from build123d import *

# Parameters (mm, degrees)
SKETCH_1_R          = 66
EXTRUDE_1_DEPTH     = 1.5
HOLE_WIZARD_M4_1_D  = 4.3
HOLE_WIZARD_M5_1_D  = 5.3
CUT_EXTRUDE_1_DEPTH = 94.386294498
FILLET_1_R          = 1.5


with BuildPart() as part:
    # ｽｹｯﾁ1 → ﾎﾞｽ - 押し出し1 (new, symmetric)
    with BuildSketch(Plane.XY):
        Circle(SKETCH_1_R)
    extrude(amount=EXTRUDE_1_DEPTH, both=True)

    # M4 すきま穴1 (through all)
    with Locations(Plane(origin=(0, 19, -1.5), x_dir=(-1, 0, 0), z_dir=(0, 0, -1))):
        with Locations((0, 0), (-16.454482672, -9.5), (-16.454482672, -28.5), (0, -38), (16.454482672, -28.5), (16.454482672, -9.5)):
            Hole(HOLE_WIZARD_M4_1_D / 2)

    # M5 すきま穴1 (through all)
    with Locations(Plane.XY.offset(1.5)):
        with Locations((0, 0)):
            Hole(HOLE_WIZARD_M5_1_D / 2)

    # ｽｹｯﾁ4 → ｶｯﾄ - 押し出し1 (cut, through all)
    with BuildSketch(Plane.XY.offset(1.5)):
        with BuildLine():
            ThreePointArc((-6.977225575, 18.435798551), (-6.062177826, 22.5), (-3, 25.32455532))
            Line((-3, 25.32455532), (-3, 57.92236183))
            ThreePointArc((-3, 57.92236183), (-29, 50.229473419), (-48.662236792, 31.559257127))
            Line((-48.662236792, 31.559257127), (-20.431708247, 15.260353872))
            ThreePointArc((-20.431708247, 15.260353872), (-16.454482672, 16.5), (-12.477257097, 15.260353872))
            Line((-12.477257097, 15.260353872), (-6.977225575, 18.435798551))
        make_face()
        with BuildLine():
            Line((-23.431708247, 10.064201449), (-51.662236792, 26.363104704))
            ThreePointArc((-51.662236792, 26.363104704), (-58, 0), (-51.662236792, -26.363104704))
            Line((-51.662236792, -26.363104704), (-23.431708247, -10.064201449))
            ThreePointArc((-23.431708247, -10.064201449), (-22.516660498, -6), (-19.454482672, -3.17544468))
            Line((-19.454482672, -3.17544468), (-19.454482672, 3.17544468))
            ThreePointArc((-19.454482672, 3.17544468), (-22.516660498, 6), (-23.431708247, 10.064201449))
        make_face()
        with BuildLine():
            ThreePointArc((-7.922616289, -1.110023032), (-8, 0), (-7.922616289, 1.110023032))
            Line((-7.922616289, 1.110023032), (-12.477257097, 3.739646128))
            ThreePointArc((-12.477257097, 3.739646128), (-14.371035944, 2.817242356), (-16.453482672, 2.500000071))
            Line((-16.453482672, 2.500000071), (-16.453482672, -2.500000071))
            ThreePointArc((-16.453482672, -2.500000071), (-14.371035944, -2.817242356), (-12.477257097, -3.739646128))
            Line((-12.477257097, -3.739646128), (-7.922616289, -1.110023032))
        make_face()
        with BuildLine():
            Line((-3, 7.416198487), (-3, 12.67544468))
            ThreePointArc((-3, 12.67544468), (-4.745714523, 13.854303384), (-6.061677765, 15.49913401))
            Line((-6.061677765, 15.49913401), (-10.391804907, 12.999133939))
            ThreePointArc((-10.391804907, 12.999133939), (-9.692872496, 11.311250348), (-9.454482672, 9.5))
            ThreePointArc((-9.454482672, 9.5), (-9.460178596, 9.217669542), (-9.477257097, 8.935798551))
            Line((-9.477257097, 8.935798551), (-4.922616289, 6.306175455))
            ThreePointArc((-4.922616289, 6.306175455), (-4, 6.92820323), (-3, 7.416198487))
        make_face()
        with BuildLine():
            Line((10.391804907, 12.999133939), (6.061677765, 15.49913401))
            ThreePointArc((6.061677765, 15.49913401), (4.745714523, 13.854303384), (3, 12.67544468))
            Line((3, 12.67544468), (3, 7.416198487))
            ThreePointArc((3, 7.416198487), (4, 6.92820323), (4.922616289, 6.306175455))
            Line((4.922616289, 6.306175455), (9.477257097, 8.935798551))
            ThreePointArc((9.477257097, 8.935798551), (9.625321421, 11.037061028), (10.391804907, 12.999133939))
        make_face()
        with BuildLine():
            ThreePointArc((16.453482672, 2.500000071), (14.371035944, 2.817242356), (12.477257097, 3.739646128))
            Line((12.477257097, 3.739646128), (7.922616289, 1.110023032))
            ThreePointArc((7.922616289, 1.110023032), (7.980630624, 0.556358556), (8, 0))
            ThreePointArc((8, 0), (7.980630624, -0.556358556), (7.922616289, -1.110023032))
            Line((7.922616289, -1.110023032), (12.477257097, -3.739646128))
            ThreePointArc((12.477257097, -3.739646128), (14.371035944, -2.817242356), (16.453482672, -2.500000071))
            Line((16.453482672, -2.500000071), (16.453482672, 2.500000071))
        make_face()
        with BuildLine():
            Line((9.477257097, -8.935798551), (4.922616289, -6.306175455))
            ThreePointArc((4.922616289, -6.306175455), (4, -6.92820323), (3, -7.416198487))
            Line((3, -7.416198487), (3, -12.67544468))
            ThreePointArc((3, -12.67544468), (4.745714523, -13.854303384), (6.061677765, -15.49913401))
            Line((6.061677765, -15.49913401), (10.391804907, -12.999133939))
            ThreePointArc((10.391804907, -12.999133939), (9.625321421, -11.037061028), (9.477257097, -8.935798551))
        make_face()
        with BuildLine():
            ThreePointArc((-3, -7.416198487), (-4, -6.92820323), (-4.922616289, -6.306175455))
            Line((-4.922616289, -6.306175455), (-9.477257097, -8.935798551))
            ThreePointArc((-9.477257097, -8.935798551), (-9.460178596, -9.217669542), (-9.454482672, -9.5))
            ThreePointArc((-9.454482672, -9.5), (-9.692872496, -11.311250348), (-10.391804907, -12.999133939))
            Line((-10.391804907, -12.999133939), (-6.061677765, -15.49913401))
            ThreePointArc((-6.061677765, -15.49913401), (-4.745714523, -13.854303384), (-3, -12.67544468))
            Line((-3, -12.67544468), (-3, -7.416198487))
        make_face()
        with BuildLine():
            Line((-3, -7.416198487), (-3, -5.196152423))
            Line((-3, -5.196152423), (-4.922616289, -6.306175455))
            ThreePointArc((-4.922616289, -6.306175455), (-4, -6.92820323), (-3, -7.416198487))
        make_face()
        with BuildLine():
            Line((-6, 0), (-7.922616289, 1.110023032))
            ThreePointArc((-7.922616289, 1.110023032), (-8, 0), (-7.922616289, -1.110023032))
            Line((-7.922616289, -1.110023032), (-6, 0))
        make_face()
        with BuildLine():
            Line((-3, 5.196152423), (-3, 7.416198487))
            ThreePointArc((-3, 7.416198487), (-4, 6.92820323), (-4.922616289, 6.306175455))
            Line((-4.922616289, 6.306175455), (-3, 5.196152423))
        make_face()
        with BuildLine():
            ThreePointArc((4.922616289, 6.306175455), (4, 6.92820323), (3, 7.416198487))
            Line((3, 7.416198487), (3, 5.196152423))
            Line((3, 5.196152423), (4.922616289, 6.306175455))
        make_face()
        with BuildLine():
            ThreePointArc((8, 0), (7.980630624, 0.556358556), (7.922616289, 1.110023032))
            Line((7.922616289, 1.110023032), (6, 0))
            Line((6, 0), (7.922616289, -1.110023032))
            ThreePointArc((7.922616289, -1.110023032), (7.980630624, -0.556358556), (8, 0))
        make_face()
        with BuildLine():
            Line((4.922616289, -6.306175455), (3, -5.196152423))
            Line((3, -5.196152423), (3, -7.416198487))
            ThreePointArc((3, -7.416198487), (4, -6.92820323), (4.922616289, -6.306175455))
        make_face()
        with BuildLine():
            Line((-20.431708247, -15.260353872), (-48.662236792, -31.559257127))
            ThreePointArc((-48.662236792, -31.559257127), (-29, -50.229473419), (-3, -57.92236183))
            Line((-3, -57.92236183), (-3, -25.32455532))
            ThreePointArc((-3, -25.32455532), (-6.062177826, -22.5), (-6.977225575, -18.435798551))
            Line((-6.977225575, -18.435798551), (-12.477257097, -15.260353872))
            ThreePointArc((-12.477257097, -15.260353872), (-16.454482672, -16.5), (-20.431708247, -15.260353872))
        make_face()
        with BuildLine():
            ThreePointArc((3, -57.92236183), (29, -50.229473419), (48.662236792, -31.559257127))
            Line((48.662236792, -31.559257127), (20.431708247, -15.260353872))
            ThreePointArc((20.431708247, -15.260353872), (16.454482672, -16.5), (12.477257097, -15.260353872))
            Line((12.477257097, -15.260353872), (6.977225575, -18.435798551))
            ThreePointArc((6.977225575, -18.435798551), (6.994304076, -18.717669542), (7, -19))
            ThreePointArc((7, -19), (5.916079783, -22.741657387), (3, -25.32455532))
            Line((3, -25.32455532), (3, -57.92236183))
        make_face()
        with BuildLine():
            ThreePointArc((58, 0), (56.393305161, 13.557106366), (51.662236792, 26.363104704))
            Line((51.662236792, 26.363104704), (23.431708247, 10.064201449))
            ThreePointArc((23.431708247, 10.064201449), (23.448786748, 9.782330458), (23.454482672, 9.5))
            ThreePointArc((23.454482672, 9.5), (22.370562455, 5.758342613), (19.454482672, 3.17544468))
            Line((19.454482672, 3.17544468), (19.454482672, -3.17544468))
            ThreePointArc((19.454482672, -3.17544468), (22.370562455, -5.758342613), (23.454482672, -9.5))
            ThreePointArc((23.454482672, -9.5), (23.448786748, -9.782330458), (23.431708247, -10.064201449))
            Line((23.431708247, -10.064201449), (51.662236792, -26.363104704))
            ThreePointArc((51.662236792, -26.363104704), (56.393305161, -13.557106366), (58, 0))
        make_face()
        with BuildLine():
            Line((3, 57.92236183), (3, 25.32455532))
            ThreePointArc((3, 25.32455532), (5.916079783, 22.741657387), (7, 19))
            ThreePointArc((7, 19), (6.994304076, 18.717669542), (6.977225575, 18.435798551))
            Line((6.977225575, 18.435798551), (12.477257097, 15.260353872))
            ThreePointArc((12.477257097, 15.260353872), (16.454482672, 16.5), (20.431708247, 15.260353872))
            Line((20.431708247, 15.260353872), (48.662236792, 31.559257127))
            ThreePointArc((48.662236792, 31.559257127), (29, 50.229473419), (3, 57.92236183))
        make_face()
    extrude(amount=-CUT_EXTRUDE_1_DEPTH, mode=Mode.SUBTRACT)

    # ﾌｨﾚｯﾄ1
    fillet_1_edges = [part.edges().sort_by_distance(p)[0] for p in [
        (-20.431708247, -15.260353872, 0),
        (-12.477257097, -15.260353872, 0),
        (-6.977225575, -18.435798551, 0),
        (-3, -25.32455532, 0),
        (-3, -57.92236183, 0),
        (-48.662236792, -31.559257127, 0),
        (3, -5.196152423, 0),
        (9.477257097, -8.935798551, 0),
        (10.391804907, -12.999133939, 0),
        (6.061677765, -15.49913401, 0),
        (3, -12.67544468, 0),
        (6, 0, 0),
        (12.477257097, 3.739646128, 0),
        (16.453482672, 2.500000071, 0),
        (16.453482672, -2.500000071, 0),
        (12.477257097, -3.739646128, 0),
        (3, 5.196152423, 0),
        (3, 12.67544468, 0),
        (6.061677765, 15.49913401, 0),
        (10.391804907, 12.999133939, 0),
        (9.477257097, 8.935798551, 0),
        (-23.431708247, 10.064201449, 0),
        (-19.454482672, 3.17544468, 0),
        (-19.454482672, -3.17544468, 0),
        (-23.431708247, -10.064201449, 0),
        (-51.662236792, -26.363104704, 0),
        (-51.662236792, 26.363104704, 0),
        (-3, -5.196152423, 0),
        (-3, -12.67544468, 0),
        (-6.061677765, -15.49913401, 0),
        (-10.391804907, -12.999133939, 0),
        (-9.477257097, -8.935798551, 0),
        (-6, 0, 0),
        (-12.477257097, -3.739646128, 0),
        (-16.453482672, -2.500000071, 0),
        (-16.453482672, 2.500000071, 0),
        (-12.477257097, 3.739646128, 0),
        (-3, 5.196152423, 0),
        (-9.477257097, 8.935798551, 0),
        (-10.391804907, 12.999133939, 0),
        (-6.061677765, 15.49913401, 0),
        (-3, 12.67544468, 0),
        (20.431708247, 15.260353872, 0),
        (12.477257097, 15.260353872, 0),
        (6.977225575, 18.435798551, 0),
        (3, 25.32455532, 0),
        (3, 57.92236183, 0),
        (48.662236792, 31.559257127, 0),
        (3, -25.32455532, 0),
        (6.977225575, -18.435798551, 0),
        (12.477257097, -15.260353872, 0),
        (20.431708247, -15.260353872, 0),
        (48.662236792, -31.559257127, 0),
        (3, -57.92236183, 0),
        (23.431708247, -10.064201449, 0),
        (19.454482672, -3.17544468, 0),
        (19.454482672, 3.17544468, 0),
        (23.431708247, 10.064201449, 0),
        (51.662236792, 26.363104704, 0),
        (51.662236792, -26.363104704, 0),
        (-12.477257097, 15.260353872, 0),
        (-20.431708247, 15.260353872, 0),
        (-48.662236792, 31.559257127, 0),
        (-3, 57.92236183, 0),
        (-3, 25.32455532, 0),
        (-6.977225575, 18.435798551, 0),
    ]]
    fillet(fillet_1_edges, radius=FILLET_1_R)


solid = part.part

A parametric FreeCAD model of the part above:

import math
import FreeCAD as App
import Part
import Sketcher

V = App.Vector
Q = App.Units.Quantity


def edges_at(feature, points):
    """Names of the edges that pass closest to the given points."""
    edges = feature.Shape.Edges
    near = lambda p: min(range(len(edges)), key=lambda i: edges[i].distToShape(Part.Vertex(*p))[0])
    return sorted({f"Edge{near(p) + 1}" for p in points})

doc = App.newDocument("Part")
params = doc.addObject("Spreadsheet::Sheet", "Params")
for row, (alias, value) in enumerate([
    ("sketch1_diameter", "132 mm"),
    ("pad1_length", "3 mm"),
    ("sketch2_diameter", "4.3 mm"),
    ("hole_diameter", "4.3 mm"),
    ("sketch3_diameter", "5.3 mm"),
    ("hole2_diameter", "5.3 mm"),
    ("sketch4_radius", "7 mm"),
    ("sketch4_radius2", "58 mm"),
    ("sketch4_height", "5 mm"),
    ("sketch4_length", "5 mm"),
    ("fillet_radius", "1.5 mm"),
], start=1):
    params.set(f"A{row}", alias)
    params.set(f"B{row}", "=" + value)
    params.setAlias(f"B{row}", alias)

body = doc.addObject("PartDesign::Body", "Body")

# Sketch on XY plane
sketch1 = body.newObject("Sketcher::SketchObject", "Sketch")
sketch1.AttachmentSupport = (doc.getObject("XY_Plane"), [""])
sketch1.MapMode = "FlatFace"
sketch1.addGeometry(Part.Circle(V(0, 0, 0), V(0, 0, 1), 66), False)
sketch1.addConstraint(Sketcher.Constraint("Coincident", 0, 3, -1, 1))
sketch1.addConstraint(Sketcher.Constraint("Diameter", 0, 132.0))
sketch1.setExpression("Constraints[1]", "Params.sketch1_diameter")
pad1 = body.newObject("PartDesign::Pad", "Pad")
pad1.Profile = sketch1
pad1.setExpression("Length", "Params.pad1_length")
pad1.Midplane = True

# Sketch on XY plane
sketch2 = body.newObject("Sketcher::SketchObject", "Sketch001")
sketch2.AttachmentSupport = (doc.getObject("XY_Plane"), [""])
sketch2.MapMode = "FlatFace"
sketch2.AttachmentOffset = App.Placement(V(0, 0, -1.5), App.Rotation())
sketch2.addGeometry(Part.Circle(V(0, 19, 0), V(0, 0, 1), 2.1), False)
sketch2.addGeometry(Part.Circle(V(16.5, 9.5, 0), V(0, 0, 1), 2.1), False)
sketch2.addGeometry(Part.Circle(V(16.5, -9.5, 0), V(0, 0, 1), 2.1), False)
sketch2.addGeometry(Part.Circle(V(0, -19, 0), V(0, 0, 1), 2.1), False)
sketch2.addGeometry(Part.Circle(V(-16.5, -9.5, 0), V(0, 0, 1), 2.1), False)
sketch2.addGeometry(Part.Circle(V(-16.5, 9.5, 0), V(0, 0, 1), 2.1), False)
sketch2.addConstraint(Sketcher.Constraint("Equal", 0, 1))
sketch2.addConstraint(Sketcher.Constraint("Equal", 1, 2))
sketch2.addConstraint(Sketcher.Constraint("Equal", 2, 3))
sketch2.addConstraint(Sketcher.Constraint("Equal", 3, 4))
sketch2.addConstraint(Sketcher.Constraint("Equal", 4, 5))
sketch2.addConstraint(Sketcher.Constraint("Symmetric", 0, 3, 3, 3, -1, 1))
sketch2.addConstraint(Sketcher.Constraint("Symmetric", 1, 3, 4, 3, -1, 1))
sketch2.addConstraint(Sketcher.Constraint("Symmetric", 2, 3, 5, 3, -1, 1))
sketch2.addConstraint(Sketcher.Constraint("Symmetric", 2, 3, 4, 3, -2))
sketch2.addConstraint(Sketcher.Constraint("PointOnObject", 0, 3, -2))
sketch2.addConstraint(Sketcher.Constraint("Diameter", 0, 4.3))
sketch2.addConstraint(Sketcher.Constraint("DistanceY", -1, 1, 0, 3, 19.0))
sketch2.addConstraint(Sketcher.Constraint("DistanceY", 2, 3, 1, 3, 19.0))
sketch2.addConstraint(Sketcher.Constraint("DistanceX", -1, 1, 1, 3, 16.454483))
sketch2.setExpression("Constraints[10]", "Params.sketch2_diameter")
doc.recompute()
hole = body.newObject("PartDesign::Hole", "Hole")
hole.Profile = sketch2
hole.ThreadType = "None"
hole.setExpression("Diameter", "Params.hole_diameter")
hole.DepthType = "ThroughAll"
hole.Reversed = True

# Sketch on XY plane
sketch3 = body.newObject("Sketcher::SketchObject", "Sketch002")
sketch3.AttachmentSupport = (doc.getObject("XY_Plane"), [""])
sketch3.MapMode = "FlatFace"
sketch3.AttachmentOffset = App.Placement(V(0, 0, 1.5), App.Rotation())
sketch3.addGeometry(Part.Circle(V(0, 0, 0), V(0, 0, 1), 2.6), False)
sketch3.addConstraint(Sketcher.Constraint("Coincident", 0, 3, -1, 1))
sketch3.addConstraint(Sketcher.Constraint("Diameter", 0, 5.3))
sketch3.setExpression("Constraints[1]", "Params.sketch3_diameter")
doc.recompute()
hole2 = body.newObject("PartDesign::Hole", "Hole001")
hole2.Profile = sketch3
hole2.ThreadType = "None"
hole2.setExpression("Diameter", "Params.hole2_diameter")
hole2.DepthType = "ThroughAll"

# Sketch on XY plane
sketch4 = body.newObject("Sketcher::SketchObject", "Sketch003")
sketch4.AttachmentSupport = (doc.getObject("XY_Plane"), [""])
sketch4.MapMode = "FlatFace"
sketch4.AttachmentOffset = App.Placement(V(0, 0, 1.5), App.Rotation())
sketch4.addGeometry(Part.ArcOfCircle(Part.Circle(V(0, 19, 0), V(0, 0, 1), 7), math.radians(115), math.radians(185)), False)
sketch4.addGeometry(Part.LineSegment(V(-3, 25.3, 0), V(-3, 57.9, 0)), False)
sketch4.addGeometry(Part.ArcOfCircle(Part.Circle(V(0, 0, 0), V(0, 0, 1), 58), math.radians(93), math.radians(147)), False)
sketch4.addGeometry(Part.LineSegment(V(-48.7, 31.6, 0), V(-20.4, 15.3, 0)), False)
sketch4.addGeometry(Part.ArcOfCircle(Part.Circle(V(-16.5, 9.5, 0), V(0, 0, 1), 7), math.radians(55), math.radians(125)), False)
sketch4.addGeometry(Part.LineSegment(V(-12.5, 15.3, 0), V(-7, 18.4, 0)), False)
sketch4.addGeometry(Part.LineSegment(V(-23.4, 10.1, 0), V(-51.7, 26.4, 0)), False)
sketch4.addGeometry(Part.ArcOfCircle(Part.Circle(V(0, 0, 0), V(0, 0, 1), 58), math.radians(153), math.radians(207)), False)
sketch4.addGeometry(Part.LineSegment(V(-51.7, -26.4, 0), V(-23.4, -10.1, 0)), False)
sketch4.addGeometry(Part.ArcOfCircle(Part.Circle(V(-16.5, -9.5, 0), V(0, 0, 1), 7), math.radians(115), math.radians(185)), False)
sketch4.addGeometry(Part.LineSegment(V(-19.5, -3.2, 0), V(-19.5, 3.2, 0)), False)
sketch4.addGeometry(Part.ArcOfCircle(Part.Circle(V(-16.5, 9.5, 0), V(0, 0, 1), 7), math.radians(175), math.radians(245)), False)
sketch4.addGeometry(Part.LineSegment(V(-7.9, 1.1, 0), V(-12.5, 3.7, 0)), False)
sketch4.addGeometry(Part.ArcOfCircle(Part.Circle(V(-16.5, 9.5, 0), V(0, 0, 1), 7), math.radians(-90), math.radians(-55)), False)
sketch4.addGeometry(Part.LineSegment(V(-16.5, 2.5, 0), V(-16.5, -2.5, 0)), False)
sketch4.addGeometry(Part.ArcOfCircle(Part.Circle(V(-16.5, -9.5, 0), V(0, 0, 1), 7), math.radians(55), math.radians(90)), False)
sketch4.addGeometry(Part.LineSegment(V(-12.5, -3.7, 0), V(-7.9, -1.1, 0)), False)
sketch4.addGeometry(Part.LineSegment(V(-7.9, -1.1, 0), V(-6, 0, 0)), False)
sketch4.addGeometry(Part.LineSegment(V(-6, 0, 0), V(-7.9, 1.1, 0)), False)
sketch4.addGeometry(Part.ArcOfCircle(Part.Circle(V(0, 19, 0), V(0, 0, 1), 7), math.radians(-150), math.radians(-115)), False)
sketch4.addGeometry(Part.LineSegment(V(-6.1, 15.5, 0), V(-10.4, 13, 0)), False)
sketch4.addGeometry(Part.ArcOfCircle(Part.Circle(V(-16.5, 9.5, 0), V(0, 0, 1), 7), math.radians(0), math.radians(30)), False)
sketch4.addGeometry(Part.ArcOfCircle(Part.Circle(V(-16.5, 9.5, 0), V(0, 0, 1), 7), math.radians(-4.62), math.radians(0)), False)
sketch4.addGeometry(Part.LineSegment(V(-9.5, 8.9, 0), V(-4.9, 6.3, 0)), False)
sketch4.addGeometry(Part.LineSegment(V(-4.9, 6.3, 0), V(-3, 5.2, 0)), False)
sketch4.addGeometry(Part.LineSegment(V(-3, 5.2, 0), V(-3, 12.7, 0)), False)
sketch4.addGeometry(Part.LineSegment(V(10.4, 13, 0), V(6.1, 15.5, 0)), False)
sketch4.addGeometry(Part.ArcOfCircle(Part.Circle(V(0, 19, 0), V(0, 0, 1), 7), math.radians(-65), math.radians(-30)), False)
sketch4.addGeometry(Part.LineSegment(V(3, 12.7, 0), V(3, 5.2, 0)), False)
sketch4.addGeometry(Part.LineSegment(V(3, 5.2, 0), V(4.9, 6.3, 0)), False)
sketch4.addGeometry(Part.LineSegment(V(4.9, 6.3, 0), V(9.5, 8.9, 0)), False)
sketch4.addGeometry(Part.ArcOfCircle(Part.Circle(V(16.5, 9.5, 0), V(0, 0, 1), 7), math.radians(150), math.radians(185)), False)
sketch4.addGeometry(Part.ArcOfCircle(Part.Circle(V(16.5, 9.5, 0), V(0, 0, 1), 7), math.radians(-125), math.radians(-90)), False)
sketch4.addGeometry(Part.LineSegment(V(12.5, 3.7, 0), V(7.9, 1.1, 0)), False)
sketch4.addGeometry(Part.LineSegment(V(7.9, 1.1, 0), V(6, 0, 0)), False)
sketch4.addGeometry(Part.LineSegment(V(6, 0, 0), V(7.9, -1.1, 0)), False)
sketch4.addGeometry(Part.LineSegment(V(7.9, -1.1, 0), V(12.5, -3.7, 0)), False)
sketch4.addGeometry(Part.ArcOfCircle(Part.Circle(V(16.5, -9.5, 0), V(0, 0, 1), 7), math.radians(90), math.radians(125)), False)
sketch4.addGeometry(Part.LineSegment(V(16.5, -2.5, 0), V(16.5, 2.5, 0)), False)
sketch4.addGeometry(Part.LineSegment(V(9.5, -8.9, 0), V(4.9, -6.3, 0)), False)
sketch4.addGeometry(Part.LineSegment(V(4.9, -6.3, 0), V(3, -5.2, 0)), False)
sketch4.addGeometry(Part.LineSegment(V(3, -5.2, 0), V(3, -12.7, 0)), False)
sketch4.addGeometry(Part.ArcOfCircle(Part.Circle(V(0, -19, 0), V(0, 0, 1), 7), math.radians(30), math.radians(65)), False)
sketch4.addGeometry(Part.LineSegment(V(6.1, -15.5, 0), V(10.4, -13, 0)), False)
sketch4.addGeometry(Part.ArcOfCircle(Part.Circle(V(16.5, -9.5, 0), V(0, 0, 1), 7), math.radians(175), math.radians(210)), False)
sketch4.addGeometry(Part.LineSegment(V(-4.9, -6.3, 0), V(-9.5, -8.9, 0)), False)
sketch4.addGeometry(Part.ArcOfCircle(Part.Circle(V(-16.5, -9.5, 0), V(0, 0, 1), 7), math.radians(0), math.radians(4.62)), False)
sketch4.addGeometry(Part.ArcOfCircle(Part.Circle(V(-16.5, -9.5, 0), V(0, 0, 1), 7), math.radians(-30), math.radians(0)), False)
sketch4.addGeometry(Part.LineSegment(V(-10.4, -13, 0), V(-6.1, -15.5, 0)), False)
sketch4.addGeometry(Part.ArcOfCircle(Part.Circle(V(0, -19, 0), V(0, 0, 1), 7), math.radians(115), math.radians(150)), False)
sketch4.addGeometry(Part.LineSegment(V(-3, -12.7, 0), V(-3, -5.2, 0)), False)
sketch4.addGeometry(Part.LineSegment(V(-3, -5.2, 0), V(-4.9, -6.3, 0)), False)
sketch4.addGeometry(Part.LineSegment(V(-20.4, -15.3, 0), V(-48.7, -31.6, 0)), False)
sketch4.addGeometry(Part.ArcOfCircle(Part.Circle(V(0, 0, 0), V(0, 0, 1), 58), math.radians(-147), math.radians(-93)), False)
sketch4.addGeometry(Part.LineSegment(V(-3, -57.9, 0), V(-3, -25.3, 0)), False)
sketch4.addGeometry(Part.ArcOfCircle(Part.Circle(V(0, -19, 0), V(0, 0, 1), 7), math.radians(175), math.radians(245)), False)
sketch4.addGeometry(Part.LineSegment(V(-7, -18.4, 0), V(-12.5, -15.3, 0)), False)
sketch4.addGeometry(Part.ArcOfCircle(Part.Circle(V(-16.5, -9.5, 0), V(0, 0, 1), 7), math.radians(-125), math.radians(-55)), False)
sketch4.addGeometry(Part.ArcOfCircle(Part.Circle(V(0, 0, 0), V(0, 0, 1), 58), math.radians(-87), math.radians(-33)), False)
sketch4.addGeometry(Part.LineSegment(V(48.7, -31.6, 0), V(20.4, -15.3, 0)), False)
sketch4.addGeometry(Part.ArcOfCircle(Part.Circle(V(16.5, -9.5, 0), V(0, 0, 1), 7), math.radians(-125), math.radians(-55)), False)
sketch4.addGeometry(Part.LineSegment(V(12.5, -15.3, 0), V(7, -18.4, 0)), False)
sketch4.addGeometry(Part.ArcOfCircle(Part.Circle(V(0, -19, 0), V(0, 0, 1), 7), math.radians(0), math.radians(4.62)), False)
sketch4.addGeometry(Part.ArcOfCircle(Part.Circle(V(0, -19, 0), V(0, 0, 1), 7), math.radians(-65), math.radians(0)), False)
sketch4.addGeometry(Part.LineSegment(V(3, -25.3, 0), V(3, -57.9, 0)), False)
sketch4.addGeometry(Part.ArcOfCircle(Part.Circle(V(0, 0, 0), V(0, 0, 1), 58), math.radians(0), math.radians(27)), False)
sketch4.addGeometry(Part.LineSegment(V(51.7, 26.4, 0), V(23.4, 10.1, 0)), False)
sketch4.addGeometry(Part.ArcOfCircle(Part.Circle(V(16.5, 9.5, 0), V(0, 0, 1), 7), math.radians(0), math.radians(4.62)), False)
sketch4.addGeometry(Part.ArcOfCircle(Part.Circle(V(16.5, 9.5, 0), V(0, 0, 1), 7), math.radians(-65), math.radians(0)), False)
sketch4.addGeometry(Part.LineSegment(V(19.5, 3.2, 0), V(19.5, -3.2, 0)), False)
sketch4.addGeometry(Part.ArcOfCircle(Part.Circle(V(16.5, -9.5, 0), V(0, 0, 1), 7), math.radians(0), math.radians(65)), False)
sketch4.addGeometry(Part.ArcOfCircle(Part.Circle(V(16.5, -9.5, 0), V(0, 0, 1), 7), math.radians(-4.62), math.radians(0)), False)
sketch4.addGeometry(Part.LineSegment(V(23.4, -10.1, 0), V(51.7, -26.4, 0)), False)
sketch4.addGeometry(Part.ArcOfCircle(Part.Circle(V(0, 0, 0), V(0, 0, 1), 58), math.radians(-27), math.radians(0)), False)
sketch4.addGeometry(Part.LineSegment(V(3, 57.9, 0), V(3, 25.3, 0)), False)
sketch4.addGeometry(Part.ArcOfCircle(Part.Circle(V(0, 19, 0), V(0, 0, 1), 7), math.radians(0), math.radians(65)), False)
sketch4.addGeometry(Part.ArcOfCircle(Part.Circle(V(0, 19, 0), V(0, 0, 1), 7), math.radians(-4.62), math.radians(0)), False)
sketch4.addGeometry(Part.LineSegment(V(7, 18.4, 0), V(12.5, 15.3, 0)), False)
sketch4.addGeometry(Part.ArcOfCircle(Part.Circle(V(16.5, 9.5, 0), V(0, 0, 1), 7), math.radians(55), math.radians(125)), False)
sketch4.addGeometry(Part.LineSegment(V(20.4, 15.3, 0), V(48.7, 31.6, 0)), False)
sketch4.addGeometry(Part.ArcOfCircle(Part.Circle(V(0, 0, 0), V(0, 0, 1), 58), math.radians(33), math.radians(87)), False)
sketch4.addConstraint(Sketcher.Constraint("Coincident", 0, 1, 1, 1))
sketch4.addConstraint(Sketcher.Constraint("Coincident", 1, 2, 2, 1))
sketch4.addConstraint(Sketcher.Constraint("Coincident", 2, 2, 3, 1))
sketch4.addConstraint(Sketcher.Constraint("Coincident", 3, 2, 4, 2))
sketch4.addConstraint(Sketcher.Constraint("Coincident", 4, 1, 5, 1))
sketch4.addConstraint(Sketcher.Constraint("Coincident", 5, 2, 0, 2))
sketch4.addConstraint(Sketcher.Constraint("Coincident", 6, 2, 7, 1))
sketch4.addConstraint(Sketcher.Constraint("Coincident", 7, 2, 8, 1))
sketch4.addConstraint(Sketcher.Constraint("Coincident", 8, 2, 9, 2))
sketch4.addConstraint(Sketcher.Constraint("Coincident", 9, 1, 10, 1))
sketch4.addConstraint(Sketcher.Constraint("Coincident", 10, 2, 11, 2))
sketch4.addConstraint(Sketcher.Constraint("Coincident", 11, 1, 6, 1))
sketch4.addConstraint(Sketcher.Constraint("Coincident", 12, 2, 13, 2))
sketch4.addConstraint(Sketcher.Constraint("Coincident", 13, 1, 14, 1))
sketch4.addConstraint(Sketcher.Constraint("Coincident", 14, 2, 15, 2))
sketch4.addConstraint(Sketcher.Constraint("Coincident", 15, 1, 16, 1))
sketch4.addConstraint(Sketcher.Constraint("Coincident", 16, 2, 17, 1))
sketch4.addConstraint(Sketcher.Constraint("Coincident", 17, 2, 18, 1))
sketch4.addConstraint(Sketcher.Constraint("Coincident", 18, 2, 12, 1))
sketch4.addConstraint(Sketcher.Constraint("Coincident", 19, 1, 20, 1))
sketch4.addConstraint(Sketcher.Constraint("Coincident", 20, 2, 21, 2))
sketch4.addConstraint(Sketcher.Constraint("Tangent", 21, 1, 22, 2))
sketch4.addConstraint(Sketcher.Constraint("Coincident", 22, 1, 23, 1))
sketch4.addConstraint(Sketcher.Constraint("Coincident", 23, 2, 24, 1))
sketch4.addConstraint(Sketcher.Constraint("Coincident", 24, 2, 25, 1))
sketch4.addConstraint(Sketcher.Constraint("Coincident", 25, 2, 19, 2))
sketch4.addConstraint(Sketcher.Constraint("Coincident", 26, 2, 27, 2))
sketch4.addConstraint(Sketcher.Constraint("Coincident", 27, 1, 28, 1))
sketch4.addConstraint(Sketcher.Constraint("Coincident", 28, 2, 29, 1))
sketch4.addConstraint(Sketcher.Constraint("Coincident", 29, 2, 30, 1))
sketch4.addConstraint(Sketcher.Constraint("Coincident", 30, 2, 31, 2))
sketch4.addConstraint(Sketcher.Constraint("Coincident", 31, 1, 26, 1))
sketch4.addConstraint(Sketcher.Constraint("Coincident", 32, 1, 33, 1))
sketch4.addConstraint(Sketcher.Constraint("Coincident", 33, 2, 34, 1))
sketch4.addConstraint(Sketcher.Constraint("Coincident", 34, 2, 35, 1))
sketch4.addConstraint(Sketcher.Constraint("Coincident", 35, 2, 36, 1))
sketch4.addConstraint(Sketcher.Constraint("Coincident", 36, 2, 37, 2))
sketch4.addConstraint(Sketcher.Constraint("Coincident", 37, 1, 38, 1))
sketch4.addConstraint(Sketcher.Constraint("Coincident", 38, 2, 32, 2))
sketch4.addConstraint(Sketcher.Constraint("Coincident", 39, 2, 40, 1))
sketch4.addConstraint(Sketcher.Constraint("Coincident", 40, 2, 41, 1))
sketch4.addConstraint(Sketcher.Constraint("Coincident", 41, 2, 42, 2))
sketch4.addConstraint(Sketcher.Constraint("Coincident", 42, 1, 43, 1))
sketch4.addConstraint(Sketcher.Constraint("Coincident", 43, 2, 44, 2))
sketch4.addConstraint(Sketcher.Constraint("Coincident", 44, 1, 39, 1))
sketch4.addConstraint(Sketcher.Constraint("Coincident", 45, 2, 46, 2))
sketch4.addConstraint(Sketcher.Constraint("Tangent", 46, 1, 47, 2))
sketch4.addConstraint(Sketcher.Constraint("Coincident", 47, 1, 48, 1))
sketch4.addConstraint(Sketcher.Constraint("Coincident", 48, 2, 49, 2))
sketch4.addConstraint(Sketcher.Constraint("Coincident", 49, 1, 50, 1))
sketch4.addConstraint(Sketcher.Constraint("Coincident", 50, 2, 51, 1))
sketch4.addConstraint(Sketcher.Constraint("Coincident", 51, 2, 45, 1))
sketch4.addConstraint(Sketcher.Constraint("Coincident", 52, 2, 53, 1))
sketch4.addConstraint(Sketcher.Constraint("Coincident", 53, 2, 54, 1))
sketch4.addConstraint(Sketcher.Constraint("Coincident", 54, 2, 55, 2))
sketch4.addConstraint(Sketcher.Constraint("Coincident", 55, 1, 56, 1))
sketch4.addConstraint(Sketcher.Constraint("Coincident", 56, 2, 57, 2))
sketch4.addConstraint(Sketcher.Constraint("Coincident", 57, 1, 52, 1))
sketch4.addConstraint(Sketcher.Constraint("Coincident", 58, 2, 59, 1))
sketch4.addConstraint(Sketcher.Constraint("Coincident", 59, 2, 60, 2))
sketch4.addConstraint(Sketcher.Constraint("Coincident", 60, 1, 61, 1))
sketch4.addConstraint(Sketcher.Constraint("Coincident", 61, 2, 62, 2))
sketch4.addConstraint(Sketcher.Constraint("Tangent", 62, 1, 63, 2))
sketch4.addConstraint(Sketcher.Constraint("Coincident", 63, 1, 64, 1))
sketch4.addConstraint(Sketcher.Constraint("Coincident", 64, 2, 58, 1))
sketch4.addConstraint(Sketcher.Constraint("Coincident", 65, 2, 66, 1))
sketch4.addConstraint(Sketcher.Constraint("Coincident", 66, 2, 67, 2))
sketch4.addConstraint(Sketcher.Constraint("Tangent", 67, 1, 68, 2))
sketch4.addConstraint(Sketcher.Constraint("Coincident", 68, 1, 69, 1))
sketch4.addConstraint(Sketcher.Constraint("Coincident", 69, 2, 70, 2))
sketch4.addConstraint(Sketcher.Constraint("Tangent", 70, 1, 71, 2))
sketch4.addConstraint(Sketcher.Constraint("Coincident", 71, 1, 72, 1))
sketch4.addConstraint(Sketcher.Constraint("Coincident", 72, 2, 73, 1))
sketch4.addConstraint(Sketcher.Constraint("Tangent", 73, 2, 65, 1))
sketch4.addConstraint(Sketcher.Constraint("Coincident", 74, 2, 75, 2))
sketch4.addConstraint(Sketcher.Constraint("Tangent", 75, 1, 76, 2))
sketch4.addConstraint(Sketcher.Constraint("Coincident", 76, 1, 77, 1))
sketch4.addConstraint(Sketcher.Constraint("Coincident", 77, 2, 78, 2))
sketch4.addConstraint(Sketcher.Constraint("Coincident", 78, 1, 79, 1))
sketch4.addConstraint(Sketcher.Constraint("Coincident", 79, 2, 80, 1))
sketch4.addConstraint(Sketcher.Constraint("Coincident", 80, 2, 74, 1))
sketch4.addConstraint(Sketcher.Constraint("Vertical", 1))
sketch4.addConstraint(Sketcher.Constraint("Vertical", 10))
sketch4.addConstraint(Sketcher.Constraint("Vertical", 14))
sketch4.addConstraint(Sketcher.Constraint("Vertical", 25))
sketch4.addConstraint(Sketcher.Constraint("Vertical", 28))
sketch4.addConstraint(Sketcher.Constraint("Vertical", 38))
sketch4.addConstraint(Sketcher.Constraint("Vertical", 41))
sketch4.addConstraint(Sketcher.Constraint("Vertical", 50))
sketch4.addConstraint(Sketcher.Constraint("Vertical", 54))
sketch4.addConstraint(Sketcher.Constraint("Vertical", 64))
sketch4.addConstraint(Sketcher.Constraint("Vertical", 69))
sketch4.addConstraint(Sketcher.Constraint("Vertical", 74))
sketch4.addConstraint(Sketcher.Constraint("Coincident", 2, 3, -1, 1))
sketch4.addConstraint(Sketcher.Constraint("Coincident", 7, 3, -1, 1))
sketch4.addConstraint(Sketcher.Constraint("Coincident", 53, 3, -1, 1))
sketch4.addConstraint(Sketcher.Constraint("Coincident", 58, 3, -1, 1))
sketch4.addConstraint(Sketcher.Constraint("Coincident", 65, 3, -1, 1))
sketch4.addConstraint(Sketcher.Constraint("Coincident", 80, 3, -1, 1))
sketch4.addConstraint(Sketcher.Constraint("Coincident", 11, 3, 4, 3))
sketch4.addConstraint(Sketcher.Constraint("Coincident", 13, 3, 4, 3))
sketch4.addConstraint(Sketcher.Constraint("Coincident", 15, 3, 9, 3))
sketch4.addConstraint(Sketcher.Constraint("Coincident", 19, 3, 0, 3))
sketch4.addConstraint(Sketcher.Constraint("Coincident", 21, 3, 4, 3))
sketch4.addConstraint(Sketcher.Constraint("Coincident", 27, 3, 0, 3))
sketch4.addConstraint(Sketcher.Constraint("Coincident", 32, 3, 31, 3))
sketch4.addConstraint(Sketcher.Constraint("Coincident", 44, 3, 37, 3))
sketch4.addConstraint(Sketcher.Constraint("Coincident", 46, 3, 9, 3))
sketch4.addConstraint(Sketcher.Constraint("Coincident", 49, 3, 42, 3))
sketch4.addConstraint(Sketcher.Constraint("Coincident", 55, 3, 42, 3))
sketch4.addConstraint(Sketcher.Constraint("Coincident", 57, 3, 9, 3))
sketch4.addConstraint(Sketcher.Constraint("Coincident", 60, 3, 37, 3))
sketch4.addConstraint(Sketcher.Constraint("Coincident", 62, 3, 42, 3))
sketch4.addConstraint(Sketcher.Constraint("Coincident", 67, 3, 31, 3))
sketch4.addConstraint(Sketcher.Constraint("Coincident", 70, 3, 37, 3))
sketch4.addConstraint(Sketcher.Constraint("Coincident", 75, 3, 0, 3))
sketch4.addConstraint(Sketcher.Constraint("Coincident", 78, 3, 31, 3))
sketch4.addConstraint(Sketcher.Constraint("Equal", 0, 4))
sketch4.addConstraint(Sketcher.Constraint("Equal", 2, 7))
sketch4.addConstraint(Sketcher.Constraint("Equal", 4, 9))
sketch4.addConstraint(Sketcher.Constraint("Equal", 9, 11))
sketch4.addConstraint(Sketcher.Constraint("Equal", 11, 13))
sketch4.addConstraint(Sketcher.Constraint("Equal", 13, 15))
sketch4.addConstraint(Sketcher.Constraint("Equal", 15, 19))
sketch4.addConstraint(Sketcher.Constraint("Equal", 19, 21))
sketch4.addConstraint(Sketcher.Constraint("Equal", 21, 22))
sketch4.addConstraint(Sketcher.Constraint("Equal", 22, 27))
sketch4.addConstraint(Sketcher.Constraint("Equal", 27, 31))
sketch4.addConstraint(Sketcher.Constraint("Equal", 31, 32))
sketch4.addConstraint(Sketcher.Constraint("Equal", 32, 37))
sketch4.addConstraint(Sketcher.Constraint("Equal", 37, 42))
sketch4.addConstraint(Sketcher.Constraint("Equal", 42, 44))
sketch4.addConstraint(Sketcher.Constraint("Equal", 44, 46))
sketch4.addConstraint(Sketcher.Constraint("Equal", 46, 47))
sketch4.addConstraint(Sketcher.Constraint("Equal", 47, 49))
sketch4.addConstraint(Sketcher.Constraint("Equal", 7, 53))
sketch4.addConstraint(Sketcher.Constraint("Equal", 49, 55))
sketch4.addConstraint(Sketcher.Constraint("Equal", 55, 57))
sketch4.addConstraint(Sketcher.Constraint("Equal", 53, 58))
sketch4.addConstraint(Sketcher.Constraint("Equal", 57, 60))
sketch4.addConstraint(Sketcher.Constraint("Equal", 60, 62))
sketch4.addConstraint(Sketcher.Constraint("Equal", 62, 63))
sketch4.addConstraint(Sketcher.Constraint("Equal", 58, 65))
sketch4.addConstraint(Sketcher.Constraint("Equal", 63, 67))
sketch4.addConstraint(Sketcher.Constraint("Equal", 67, 68))
sketch4.addConstraint(Sketcher.Constraint("Equal", 68, 70))
sketch4.addConstraint(Sketcher.Constraint("Equal", 70, 71))
sketch4.addConstraint(Sketcher.Constraint("Equal", 65, 73))
sketch4.addConstraint(Sketcher.Constraint("Equal", 71, 75))
sketch4.addConstraint(Sketcher.Constraint("Equal", 75, 76))
sketch4.addConstraint(Sketcher.Constraint("Equal", 76, 78))
sketch4.addConstraint(Sketcher.Constraint("Equal", 73, 80))
sketch4.addConstraint(Sketcher.Constraint("Symmetric", 9, 3, 31, 3, -1, 1))
sketch4.addConstraint(Sketcher.Constraint("Symmetric", 4, 3, 37, 3, -1, 1))
sketch4.addConstraint(Sketcher.Constraint("Symmetric", 0, 3, 42, 3, -1, 1))
sketch4.addConstraint(Sketcher.Constraint("Symmetric", 16, 2, 33, 2, -1, 1))
sketch4.addConstraint(Sketcher.Constraint("Symmetric", 17, 2, 34, 2, -1, 1))
sketch4.addConstraint(Sketcher.Constraint("Symmetric", 18, 2, 35, 2, -1, 1))
sketch4.addConstraint(Sketcher.Constraint("Symmetric", 23, 2, 39, 2, -1, 1))
sketch4.addConstraint(Sketcher.Constraint("Symmetric", 24, 2, 40, 2, -1, 1))
sketch4.addConstraint(Sketcher.Constraint("Symmetric", 28, 2, 50, 2, -1, 1))
sketch4.addConstraint(Sketcher.Constraint("Symmetric", 29, 2, 51, 2, -1, 1))
sketch4.addConstraint(Sketcher.Constraint("Symmetric", 4, 3, 31, 3, -2))
sketch4.addConstraint(Sketcher.Constraint("Symmetric", 19, 1, 26, 2, -2))
sketch4.addConstraint(Sketcher.Constraint("Symmetric", 24, 2, 28, 2, -2))
sketch4.addConstraint(Sketcher.Constraint("Symmetric", 23, 2, 29, 2, -2))
sketch4.addConstraint(Sketcher.Constraint("Symmetric", 18, 2, 33, 2, -2))
sketch4.addConstraint(Sketcher.Constraint("PointOnObject", 17, 2, -1))
sketch4.addConstraint(Sketcher.Constraint("PointOnObject", 73, 2, -1))
sketch4.addConstraint(Sketcher.Constraint("Parallel", 3, 6))
sketch4.addConstraint(Sketcher.Constraint("Parallel", 5, 8))
sketch4.addConstraint(Sketcher.Constraint("Parallel", 6, 12))
sketch4.addConstraint(Sketcher.Constraint("Parallel", 8, 16))
sketch4.addConstraint(Sketcher.Constraint("Parallel", 16, 17))
sketch4.addConstraint(Sketcher.Constraint("Parallel", 12, 18))
sketch4.addConstraint(Sketcher.Constraint("Parallel", 17, 20))
sketch4.addConstraint(Sketcher.Constraint("Parallel", 18, 23))
sketch4.addConstraint(Sketcher.Constraint("Parallel", 23, 24))
sketch4.addConstraint(Sketcher.Constraint("Parallel", 24, 26))
sketch4.addConstraint(Sketcher.Constraint("Parallel", 29, 30))
sketch4.addConstraint(Sketcher.Constraint("Parallel", 30, 33))
sketch4.addConstraint(Sketcher.Constraint("Parallel", 35, 36))
sketch4.addConstraint(Sketcher.Constraint("Parallel", 36, 39))
sketch4.addConstraint(Sketcher.Constraint("Parallel", 34, 43))
sketch4.addConstraint(Sketcher.Constraint("Parallel", 43, 45))
sketch4.addConstraint(Sketcher.Constraint("Parallel", 40, 48))
sketch4.addConstraint(Sketcher.Constraint("Parallel", 51, 52))
sketch4.addConstraint(Sketcher.Constraint("Parallel", 48, 56))
sketch4.addConstraint(Sketcher.Constraint("Parallel", 56, 59))
sketch4.addConstraint(Sketcher.Constraint("Parallel", 52, 61))
sketch4.addConstraint(Sketcher.Constraint("Parallel", 61, 66))
sketch4.addConstraint(Sketcher.Constraint("Parallel", 59, 72))
sketch4.addConstraint(Sketcher.Constraint("Parallel", 72, 77))
sketch4.addConstraint(Sketcher.Constraint("Parallel", 66, 79))
sketch4.addConstraint(Sketcher.Constraint("Horizontal", 3, 2, 4, 1))
sketch4.addConstraint(Sketcher.Constraint("Horizontal", 78, 3, 21, 1))
sketch4.addConstraint(Sketcher.Constraint("Horizontal", 71, 3, 46, 1))
sketch4.addConstraint(Sketcher.Constraint("Horizontal", 43, 2, 47, 1))
sketch4.addConstraint(Sketcher.Constraint("Horizontal", 56, 2, 57, 1))
sketch4.addConstraint(Sketcher.Constraint("Horizontal", 52, 2, 58, 2))
sketch4.addConstraint(Sketcher.Constraint("Horizontal", 59, 2, 60, 1))
sketch4.addConstraint(Sketcher.Constraint("Horizontal", 63, 3, 62, 1))
sketch4.addConstraint(Sketcher.Constraint("Horizontal", 54, 2, 63, 1))
sketch4.addConstraint(Sketcher.Constraint("Horizontal", 6, 2, 65, 2))
sketch4.addConstraint(Sketcher.Constraint("Horizontal", 21, 1, 67, 1))
sketch4.addConstraint(Sketcher.Constraint("Horizontal", 10, 2, 68, 1))
sketch4.addConstraint(Sketcher.Constraint("Horizontal", 46, 1, 70, 1))
sketch4.addConstraint(Sketcher.Constraint("Horizontal", 8, 2, 71, 1))
sketch4.addConstraint(Sketcher.Constraint("Horizontal", 0, 1, 74, 2))
sketch4.addConstraint(Sketcher.Constraint("Horizontal", 76, 3, 75, 1))
sketch4.addConstraint(Sketcher.Constraint("Horizontal", 5, 2, 76, 1))
sketch4.addConstraint(Sketcher.Constraint("Horizontal", 77, 2, 78, 1))
sketch4.addConstraint(Sketcher.Constraint("Vertical", 6, 2, 7, 2))
sketch4.addConstraint(Sketcher.Constraint("Vertical", 4, 1, 12, 2))
sketch4.addConstraint(Sketcher.Constraint("Vertical", 1, 2, 24, 2))
sketch4.addConstraint(Sketcher.Constraint("Vertical", 26, 2, 42, 1))
sketch4.addConstraint(Sketcher.Constraint("Vertical", 2, 2, 52, 2))
sketch4.addConstraint(Sketcher.Constraint("Vertical", 50, 2, 53, 2))
sketch4.addConstraint(Sketcher.Constraint("Equal", 3, 6))
sketch4.addConstraint(Sketcher.Constraint("Equal", 16, 23))
sketch4.addConstraint(Sketcher.Constraint("Equal", 18, 24))
sketch4.addConstraint(Sketcher.Constraint("Radius", 0, 7.0))
sketch4.addConstraint(Sketcher.Constraint("Radius", 2, 58.0))
sketch4.addConstraint(Sketcher.Constraint("DistanceY", 14, 2, 14, 1, 5.0))
sketch4.addConstraint(Sketcher.Constraint("Angle", 3, Q("-30 deg")))
sketch4.addConstraint(Sketcher.Constraint("Distance", 20, 5.0))
sketch4.addConstraint(Sketcher.Constraint("DistanceY", -1, 1, 0, 3, 19.0))
sketch4.addConstraint(Sketcher.Constraint("DistanceX", 0, 1, -1, 1, 3.0))
sketch4.addConstraint(Sketcher.Constraint("DistanceX", 17, 2, -1, 1, 6.0))
sketch4.addConstraint(Sketcher.Constraint("DistanceY", 10, 1, 10, 2, 6.350889))
sketch4.addConstraint(Sketcher.Constraint("Distance", 12, 5.259246))
sketch4.addConstraint(Sketcher.Constraint("DistanceX", 13, 1, -1, 1, 16.453483))
sketch4.addConstraint(Sketcher.Constraint("DistanceX", 19, 1, -1, 1, 6.061678))
sketch4.addConstraint(Sketcher.Constraint("DistanceX", -1, 1, 37, 1, 16.453483))
sketch4.setExpression("Constraints[221]", "Params.sketch4_radius")
sketch4.setExpression("Constraints[222]", "Params.sketch4_radius2")
sketch4.setExpression("Constraints[223]", "Params.sketch4_height")
sketch4.setExpression("Constraints[225]", "Params.sketch4_length")
pocket1 = body.newObject("PartDesign::Pocket", "Pocket")
pocket1.Profile = sketch4
pocket1.Type = "ThroughAll"
doc.recompute()

fillet = body.newObject("PartDesign::Fillet", "Fillet")
fillet.Base = (pocket1, edges_at(pocket1, [
    (-20.432, -15.26, 0),
    (-12.477, -15.26, 0),
    (-6.977, -18.436, 0),
    (-3, -25.325, 0),
    (-3, -57.922, 0),
    (-48.662, -31.559, 0),
    (3, -5.196, 0),
    (9.477, -8.936, 0),
    (10.392, -12.999, 0),
    (6.062, -15.499, 0),
    (3, -12.675, 0),
    (6, 0, 0),
    (12.477, 3.74, 0),
    (16.453, 2.5, 0),
    (16.453, -2.5, 0),
    (12.477, -3.74, 0),
    (3, 5.196, 0),
    (3, 12.675, 0),
    (6.062, 15.499, 0),
    (10.392, 12.999, 0),
    (9.477, 8.936, 0),
    (-23.432, 10.064, 0),
    (-19.454, 3.175, 0),
    (-19.454, -3.175, 0),
    (-23.432, -10.064, 0),
    (-51.662, -26.363, 0),
    (-51.662, 26.363, 0),
    (-3, -5.196, 0),
    (-3, -12.675, 0),
    (-6.062, -15.499, 0),
    (-10.392, -12.999, 0),
    (-9.477, -8.936, 0),
    (-6, 0, 0),
    (-12.477, -3.74, 0),
    (-16.453, -2.5, 0),
    (-16.453, 2.5, 0),
    (-12.477, 3.74, 0),
    (-3, 5.196, 0),
    (-9.477, 8.936, 0),
    (-10.392, 12.999, 0),
    (-6.062, 15.499, 0),
    (-3, 12.675, 0),
    (20.432, 15.26, 0),
    (12.477, 15.26, 0),
    (6.977, 18.436, 0),
    (3, 25.325, 0),
    (3, 57.922, 0),
    (48.662, 31.559, 0),
    (3, -25.325, 0),
    (6.977, -18.436, 0),
    (12.477, -15.26, 0),
    (20.432, -15.26, 0),
    (48.662, -31.559, 0),
    (3, -57.922, 0),
    (23.432, -10.064, 0),
    (19.454, -3.175, 0),
    (19.454, 3.175, 0),
    (23.432, 10.064, 0),
    (51.662, 26.363, 0),
    (51.662, -26.363, 0),
    (-12.477, 15.26, 0),
    (-20.432, 15.26, 0),
    (-48.662, 31.559, 0),
    (-3, 57.922, 0),
    (-3, 25.325, 0),
    (-6.977, 18.436, 0),
]))
fillet.setExpression("Radius", "Params.fillet_radius")

doc.recompute()
